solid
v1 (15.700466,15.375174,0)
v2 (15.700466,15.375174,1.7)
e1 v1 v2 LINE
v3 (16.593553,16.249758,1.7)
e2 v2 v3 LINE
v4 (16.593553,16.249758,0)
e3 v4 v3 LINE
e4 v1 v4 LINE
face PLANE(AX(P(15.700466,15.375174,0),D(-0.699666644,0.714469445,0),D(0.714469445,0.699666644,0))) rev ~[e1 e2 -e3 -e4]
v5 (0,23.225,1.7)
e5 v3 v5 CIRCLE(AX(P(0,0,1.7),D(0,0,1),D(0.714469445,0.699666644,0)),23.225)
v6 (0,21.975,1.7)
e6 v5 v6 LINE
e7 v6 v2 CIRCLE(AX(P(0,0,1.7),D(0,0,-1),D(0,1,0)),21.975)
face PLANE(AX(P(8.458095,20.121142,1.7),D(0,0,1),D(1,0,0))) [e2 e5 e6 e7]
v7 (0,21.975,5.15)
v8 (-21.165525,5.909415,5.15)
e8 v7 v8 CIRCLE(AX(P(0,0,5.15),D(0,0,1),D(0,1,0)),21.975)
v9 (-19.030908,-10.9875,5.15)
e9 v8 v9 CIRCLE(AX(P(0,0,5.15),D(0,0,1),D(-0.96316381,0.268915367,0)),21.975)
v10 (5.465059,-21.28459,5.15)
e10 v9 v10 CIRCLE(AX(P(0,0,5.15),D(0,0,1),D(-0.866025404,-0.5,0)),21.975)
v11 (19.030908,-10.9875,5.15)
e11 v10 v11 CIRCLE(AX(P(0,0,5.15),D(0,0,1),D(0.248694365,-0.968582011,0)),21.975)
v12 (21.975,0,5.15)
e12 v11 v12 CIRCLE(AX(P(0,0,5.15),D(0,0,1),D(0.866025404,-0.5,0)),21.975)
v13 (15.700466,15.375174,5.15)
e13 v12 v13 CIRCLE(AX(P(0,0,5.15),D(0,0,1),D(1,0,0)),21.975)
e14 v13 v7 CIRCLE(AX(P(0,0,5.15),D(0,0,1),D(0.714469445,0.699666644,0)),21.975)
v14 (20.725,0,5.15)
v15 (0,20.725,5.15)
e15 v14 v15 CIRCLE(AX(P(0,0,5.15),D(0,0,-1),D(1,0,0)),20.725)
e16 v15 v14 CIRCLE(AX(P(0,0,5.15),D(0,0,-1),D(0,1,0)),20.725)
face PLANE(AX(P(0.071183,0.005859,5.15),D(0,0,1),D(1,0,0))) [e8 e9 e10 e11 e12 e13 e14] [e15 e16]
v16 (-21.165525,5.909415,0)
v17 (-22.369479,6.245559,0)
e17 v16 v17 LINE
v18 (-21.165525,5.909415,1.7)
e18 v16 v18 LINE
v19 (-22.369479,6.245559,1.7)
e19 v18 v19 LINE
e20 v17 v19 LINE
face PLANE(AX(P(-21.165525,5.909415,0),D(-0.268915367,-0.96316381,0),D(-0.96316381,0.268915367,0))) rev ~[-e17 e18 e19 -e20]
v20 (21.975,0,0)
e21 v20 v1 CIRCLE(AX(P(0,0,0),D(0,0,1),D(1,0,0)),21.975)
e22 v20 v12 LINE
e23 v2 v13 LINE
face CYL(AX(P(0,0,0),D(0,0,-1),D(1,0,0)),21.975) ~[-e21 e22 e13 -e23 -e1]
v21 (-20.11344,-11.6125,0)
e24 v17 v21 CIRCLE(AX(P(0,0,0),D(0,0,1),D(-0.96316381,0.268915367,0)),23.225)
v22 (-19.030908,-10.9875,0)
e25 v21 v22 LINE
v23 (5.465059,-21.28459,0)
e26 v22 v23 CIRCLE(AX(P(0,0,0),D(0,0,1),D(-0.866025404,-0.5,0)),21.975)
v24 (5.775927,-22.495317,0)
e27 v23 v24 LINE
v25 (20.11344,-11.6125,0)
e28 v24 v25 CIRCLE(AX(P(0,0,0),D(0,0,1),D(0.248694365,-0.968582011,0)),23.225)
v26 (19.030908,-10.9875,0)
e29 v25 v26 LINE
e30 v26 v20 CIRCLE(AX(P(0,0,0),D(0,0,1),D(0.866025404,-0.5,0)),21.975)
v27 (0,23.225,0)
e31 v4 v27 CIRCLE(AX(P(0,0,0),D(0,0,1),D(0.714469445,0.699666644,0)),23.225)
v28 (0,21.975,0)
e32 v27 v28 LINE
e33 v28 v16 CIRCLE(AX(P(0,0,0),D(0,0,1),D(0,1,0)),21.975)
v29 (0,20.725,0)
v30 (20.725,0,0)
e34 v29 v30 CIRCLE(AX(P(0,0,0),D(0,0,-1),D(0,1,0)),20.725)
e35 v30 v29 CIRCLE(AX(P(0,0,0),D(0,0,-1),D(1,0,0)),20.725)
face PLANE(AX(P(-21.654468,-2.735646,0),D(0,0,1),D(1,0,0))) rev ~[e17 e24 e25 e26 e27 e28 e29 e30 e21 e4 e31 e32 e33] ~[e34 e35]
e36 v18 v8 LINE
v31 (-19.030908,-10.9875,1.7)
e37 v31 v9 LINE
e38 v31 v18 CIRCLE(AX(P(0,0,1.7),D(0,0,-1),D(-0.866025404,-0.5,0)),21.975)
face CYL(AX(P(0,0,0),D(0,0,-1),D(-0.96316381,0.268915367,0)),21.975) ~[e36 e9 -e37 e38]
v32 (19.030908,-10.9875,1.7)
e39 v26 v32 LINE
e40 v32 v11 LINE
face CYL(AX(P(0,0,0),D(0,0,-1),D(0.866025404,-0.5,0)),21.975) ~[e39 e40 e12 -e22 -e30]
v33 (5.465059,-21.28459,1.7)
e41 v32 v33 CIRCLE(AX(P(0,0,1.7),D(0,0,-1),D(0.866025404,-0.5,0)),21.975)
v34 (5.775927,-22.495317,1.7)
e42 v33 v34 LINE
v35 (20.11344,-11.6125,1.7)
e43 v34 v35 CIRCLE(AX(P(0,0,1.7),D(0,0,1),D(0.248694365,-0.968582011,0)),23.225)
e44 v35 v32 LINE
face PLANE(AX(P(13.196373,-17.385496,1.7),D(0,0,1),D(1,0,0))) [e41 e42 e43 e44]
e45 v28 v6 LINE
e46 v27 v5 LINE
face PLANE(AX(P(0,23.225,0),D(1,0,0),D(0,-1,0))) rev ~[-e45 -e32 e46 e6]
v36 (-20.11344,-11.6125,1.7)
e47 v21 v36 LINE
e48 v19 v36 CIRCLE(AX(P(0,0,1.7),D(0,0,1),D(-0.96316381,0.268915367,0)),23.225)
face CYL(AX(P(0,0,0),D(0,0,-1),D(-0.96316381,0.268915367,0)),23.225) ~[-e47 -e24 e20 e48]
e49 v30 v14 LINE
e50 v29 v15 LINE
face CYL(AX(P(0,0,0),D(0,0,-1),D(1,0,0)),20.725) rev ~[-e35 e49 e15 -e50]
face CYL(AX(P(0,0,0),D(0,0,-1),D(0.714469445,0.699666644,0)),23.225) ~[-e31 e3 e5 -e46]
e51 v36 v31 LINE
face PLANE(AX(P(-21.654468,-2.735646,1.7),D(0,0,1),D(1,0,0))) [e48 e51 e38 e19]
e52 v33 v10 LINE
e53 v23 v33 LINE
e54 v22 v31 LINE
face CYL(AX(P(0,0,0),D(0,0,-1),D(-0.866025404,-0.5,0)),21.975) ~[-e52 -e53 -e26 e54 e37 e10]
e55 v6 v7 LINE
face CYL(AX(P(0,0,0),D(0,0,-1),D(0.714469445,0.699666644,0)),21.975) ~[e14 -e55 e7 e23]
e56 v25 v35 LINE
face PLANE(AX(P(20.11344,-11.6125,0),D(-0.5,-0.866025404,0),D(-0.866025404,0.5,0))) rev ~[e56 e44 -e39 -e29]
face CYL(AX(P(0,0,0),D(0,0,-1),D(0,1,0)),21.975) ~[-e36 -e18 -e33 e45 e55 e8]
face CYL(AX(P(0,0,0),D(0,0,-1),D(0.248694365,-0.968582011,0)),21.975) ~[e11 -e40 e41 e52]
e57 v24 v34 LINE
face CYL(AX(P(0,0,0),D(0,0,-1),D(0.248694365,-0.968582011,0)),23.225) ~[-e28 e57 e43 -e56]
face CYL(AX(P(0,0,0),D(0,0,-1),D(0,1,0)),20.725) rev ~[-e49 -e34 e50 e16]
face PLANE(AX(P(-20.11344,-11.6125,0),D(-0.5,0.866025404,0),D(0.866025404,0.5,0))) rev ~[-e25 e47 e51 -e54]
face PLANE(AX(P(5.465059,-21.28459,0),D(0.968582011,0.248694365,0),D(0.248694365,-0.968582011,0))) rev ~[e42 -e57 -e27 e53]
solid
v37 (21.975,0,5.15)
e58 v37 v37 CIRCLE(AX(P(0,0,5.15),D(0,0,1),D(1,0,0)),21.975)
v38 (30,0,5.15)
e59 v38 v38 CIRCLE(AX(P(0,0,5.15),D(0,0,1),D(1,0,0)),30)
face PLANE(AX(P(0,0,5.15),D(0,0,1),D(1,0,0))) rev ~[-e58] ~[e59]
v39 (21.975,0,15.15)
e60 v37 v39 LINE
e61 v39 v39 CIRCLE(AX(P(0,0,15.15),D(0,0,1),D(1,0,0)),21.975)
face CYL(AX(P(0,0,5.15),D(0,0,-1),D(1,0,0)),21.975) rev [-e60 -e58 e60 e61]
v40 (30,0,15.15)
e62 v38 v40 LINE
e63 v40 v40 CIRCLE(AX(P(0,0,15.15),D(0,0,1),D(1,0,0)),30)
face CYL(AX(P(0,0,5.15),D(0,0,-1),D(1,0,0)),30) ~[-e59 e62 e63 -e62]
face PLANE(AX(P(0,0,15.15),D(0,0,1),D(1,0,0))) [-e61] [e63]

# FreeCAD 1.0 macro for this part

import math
import FreeCAD as App
import Part
import Sketcher
Q = App.Units.Quantity

doc = App.newDocument("Part")
body = doc.addObject("PartDesign::Body", "Body")

sketch1 = body.newObject("Sketcher::SketchObject", "Sketch")
sketch1.AttachmentSupport = (doc.getObject("XY_Plane"), [""])
sketch1.MapMode = "FlatFace"
sketch1.addGeometry([
    Part.ArcOfCircle(Part.Circle(App.Vector(0, 0, 0), App.Vector(0, 0, 1), 22), math.radians(44), math.radians(90)),
    Part.ArcOfCircle(Part.Circle(App.Vector(0, 0, 0), App.Vector(0, 0, 1), 22), math.radians(90), math.radians(164)),
    Part.ArcOfCircle(Part.Circle(App.Vector(0, 0, 0), App.Vector(0, 0, 1), 22), math.radians(164), math.radians(210)),
    Part.ArcOfCircle(Part.Circle(App.Vector(0, 0, 0), App.Vector(0, 0, 1), 22), math.radians(-150), math.radians(-76)),
    Part.ArcOfCircle(Part.Circle(App.Vector(0, 0, 0), App.Vector(0, 0, 1), 22), math.radians(-76), math.radians(-30)),
    Part.ArcOfCircle(Part.Circle(App.Vector(0, 0, 0), App.Vector(0, 0, 1), 22), math.radians(-30), math.radians(0)),
    Part.ArcOfCircle(Part.Circle(App.Vector(0, 0, 0), App.Vector(0, 0, 1), 22), math.radians(0), math.radians(44)),
    Part.ArcOfCircle(Part.Circle(App.Vector(0, 0, 0), App.Vector(0, 0, 1), 21), math.radians(90), math.radians(360)),
    Part.ArcOfCircle(Part.Circle(App.Vector(0, 0, 0), App.Vector(0, 0, 1), 21), math.radians(0), math.radians(90)),
], False)
sketch1.addConstraint([
    Sketcher.Constraint("Tangent", 0, 2, 1, 1),
    Sketcher.Constraint("Tangent", 1, 2, 2, 1),
    Sketcher.Constraint("Tangent", 2, 2, 3, 1),
    Sketcher.Constraint("Tangent", 3, 2, 4, 1),
    Sketcher.Constraint("Tangent", 4, 2, 5, 1),
    Sketcher.Constraint("Tangent", 5, 2, 6, 1),
    Sketcher.Constraint("Tangent", 6, 2, 0, 1),
    Sketcher.Constraint("Tangent", 7, 1, 8, 2),
    Sketcher.Constraint("Coincident", 8, 1, 7, 2),
    Sketcher.Constraint("Coincident", 0, 3, -1, 1),
    Sketcher.Constraint("Coincident", 2, 3, -1, 1),
    Sketcher.Constraint("Coincident", 4, 3, -1, 1),
    Sketcher.Constraint("Coincident", 7, 3, -1, 1),
    Sketcher.Constraint("PointOnObject", 0, 2, -2),
    Sketcher.Constraint("PointOnObject", 5, 2, -1),
    Sketcher.Constraint("PointOnObject", 7, 1, -2),
    Sketcher.Constraint("PointOnObject", 8, 1, -1),
    Sketcher.Constraint("Horizontal", 2, 2, 4, 2),
    Sketcher.Constraint("Radius", 0, 21.975),
    Sketcher.Constraint("Radius", 7, 20.725),
    Sketcher.Constraint("DistanceY", 2, 2, -1, 1, 10.9875),
    Sketcher.Constraint("DistanceX", -1, 1, 3, 2, 5.465059),
    Sketcher.Constraint("DistanceX", 1, 2, -1, 1, 21.165525),
    Sketcher.Constraint("DistanceX", -1, 1, 6, 2, 15.700466),
])
pad1 = body.newObject("PartDesign::Pad", "Pad")
pad1.Profile = sketch1
pad1.Length = 5.15

sketch2 = body.newObject("Sketcher::SketchObject", "Sketch001")
sketch2.AttachmentSupport = (doc.getObject("XY_Plane"), [""])
sketch2.MapMode = "FlatFace"
sketch2.addGeometry([
    Part.ArcOfCircle(Part.Circle(App.Vector(0, 0, 0), App.Vector(0, 0, 1), 22), math.radians(164), math.radians(210)),
    Part.LineSegment(App.Vector(-21.2, 5.9, 0), App.Vector(-22.4, 6.2, 0)),
    Part.ArcOfCircle(Part.Circle(App.Vector(0, 0, 0), App.Vector(0, 0, 1), 23.2), math.radians(164), math.radians(210)),
    Part.LineSegment(App.Vector(-20.1, -11.6, 0), App.Vector(-19, -11, 0)),
    Part.LineSegment(App.Vector(0, 23.2, 0), App.Vector(0, 22, 0)),
    Part.ArcOfCircle(Part.Circle(App.Vector(0, 0, 0), App.Vector(0, 0, 1), 22), math.radians(44), math.radians(90)),
    Part.LineSegment(App.Vector(15.7, 15.4, 0), App.Vector(16.6, 16.2, 0)),
    Part.ArcOfCircle(Part.Circle(App.Vector(0, 0, 0), App.Vector(0, 0, 1), 23.2), math.radians(44), math.radians(90)),
    Part.LineSegment(App.Vector(20.1, -11.6, 0), App.Vector(19, -11, 0)),
    Part.ArcOfCircle(Part.Circle(App.Vector(0, 0, 0), App.Vector(0, 0, 1), 22), math.radians(-76), math.radians(-30)),
    Part.LineSegment(App.Vector(5.5, -21.3, 0), App.Vector(5.8, -22.5, 0)),
    Part.ArcOfCircle(Part.Circle(App.Vector(0, 0, 0), App.Vector(0, 0, 1), 23.2), math.radians(-76), math.radians(-30)),
], False)
sketch2.addConstraint([
    Sketcher.Constraint("Coincident", 0, 1, 1, 1),
    Sketcher.Constraint("Coincident", 1, 2, 2, 1),
    Sketcher.Constraint("Coincident", 2, 2, 3, 1),
    Sketcher.Constraint("Coincident", 3, 2, 0, 2),
    Sketcher.Constraint("Coincident", 4, 2, 5, 2),
    Sketcher.Constraint("Coincident", 5, 1, 6, 1),
    Sketcher.Constraint("Coincident", 6, 2, 7, 1),
    Sketcher.Constraint("Coincident", 7, 2, 4, 1),
    Sketcher.Constraint("Coincident", 8, 2, 9, 2),
    Sketcher.Constraint("Coincident", 9, 1, 10, 1),
    Sketcher.Constraint("Coincident", 10, 2, 11, 1),
    Sketcher.Constraint("Coincident", 11, 2, 8, 1),
    Sketcher.Constraint("Vertical", 4),
    Sketcher.Constraint("Coincident", 0, 3, -1, 1),
    Sketcher.Constraint("Coincident", 2, 3, -1, 1),
    Sketcher.Constraint("Coincident", 5, 3, -1, 1),
    Sketcher.Constraint("Coincident", 7, 3, -1, 1),
    Sketcher.Constraint("Coincident", 9, 3, -1, 1),
    Sketcher.Constraint("Coincident", 11, 3, -1, 1),
    Sketcher.Constraint("Equal", 0, 5),
    Sketcher.Constraint("Equal", 2, 7),
    Sketcher.Constraint("Equal", 5, 9),
    Sketcher.Constraint("Equal", 7, 11),
    Sketcher.Constraint("PointOnObject", 4, 2, -2),
    Sketcher.Constraint("Horizontal", 3, 2, 8, 2),
    Sketcher.Constraint("Horizontal", 2, 2, 11, 2),
    Sketcher.Constraint("Angle", 3, Q("30 deg")),
    Sketcher.Constraint("Radius", 0, 21.975),
    Sketcher.Constraint("Radius", 2, 23.225),
    Sketcher.Constraint("DistanceY", 2, 2, -1, 1, 11.6125),
    Sketcher.Constraint("DistanceX", 1, 2, -1, 1, 22.369479),
    Sketcher.Constraint("DistanceX", -1, 1, 9, 1, 5.465059),
    Sketcher.Constraint("DistanceX", 10, 2, 8, 2, 13.254982),
    Sketcher.Constraint("DistanceX", 0, 1, -1, 1, 21.165525),
    Sketcher.Constraint("DistanceX", -1, 1, 5, 1, 15.700466),
    Sketcher.Constraint("DistanceX", -1, 1, 6, 2, 16.593553),
])
pad2 = body.newObject("PartDesign::Pad", "Pad001")
pad2.Profile = sketch2
pad2.Length = 1.7
body2 = doc.addObject("PartDesign::Body", "Body001")

sketch3 = body2.newObject("Sketcher::SketchObject", "Sketch002")
sketch3.AttachmentSupport = (doc.getObject("XY_Plane001"), [""])
sketch3.MapMode = "FlatFace"
sketch3.AttachmentOffset = App.Placement(App.Vector(0, 0, 5.15), App.Rotation())
sketch3.addGeometry([
    Part.Circle(App.Vector(0, 0, 0), App.Vector(0, 0, 1), 30),
    Part.Circle(App.Vector(0, 0, 0), App.Vector(0, 0, 1), 22),
], False)
sketch3.addConstraint([
    Sketcher.Constraint("Coincident", 0, 3, -1, 1),
    Sketcher.Constraint("Coincident", 1, 3, -1, 1),
    Sketcher.Constraint("Diameter", 0, 60.0),
    Sketcher.Constraint("Diameter", 1, 43.95),
])
pad3 = body2.newObject("PartDesign::Pad", "Pad002")
pad3.Profile = sketch3
pad3.Length = 10

doc.recompute()
